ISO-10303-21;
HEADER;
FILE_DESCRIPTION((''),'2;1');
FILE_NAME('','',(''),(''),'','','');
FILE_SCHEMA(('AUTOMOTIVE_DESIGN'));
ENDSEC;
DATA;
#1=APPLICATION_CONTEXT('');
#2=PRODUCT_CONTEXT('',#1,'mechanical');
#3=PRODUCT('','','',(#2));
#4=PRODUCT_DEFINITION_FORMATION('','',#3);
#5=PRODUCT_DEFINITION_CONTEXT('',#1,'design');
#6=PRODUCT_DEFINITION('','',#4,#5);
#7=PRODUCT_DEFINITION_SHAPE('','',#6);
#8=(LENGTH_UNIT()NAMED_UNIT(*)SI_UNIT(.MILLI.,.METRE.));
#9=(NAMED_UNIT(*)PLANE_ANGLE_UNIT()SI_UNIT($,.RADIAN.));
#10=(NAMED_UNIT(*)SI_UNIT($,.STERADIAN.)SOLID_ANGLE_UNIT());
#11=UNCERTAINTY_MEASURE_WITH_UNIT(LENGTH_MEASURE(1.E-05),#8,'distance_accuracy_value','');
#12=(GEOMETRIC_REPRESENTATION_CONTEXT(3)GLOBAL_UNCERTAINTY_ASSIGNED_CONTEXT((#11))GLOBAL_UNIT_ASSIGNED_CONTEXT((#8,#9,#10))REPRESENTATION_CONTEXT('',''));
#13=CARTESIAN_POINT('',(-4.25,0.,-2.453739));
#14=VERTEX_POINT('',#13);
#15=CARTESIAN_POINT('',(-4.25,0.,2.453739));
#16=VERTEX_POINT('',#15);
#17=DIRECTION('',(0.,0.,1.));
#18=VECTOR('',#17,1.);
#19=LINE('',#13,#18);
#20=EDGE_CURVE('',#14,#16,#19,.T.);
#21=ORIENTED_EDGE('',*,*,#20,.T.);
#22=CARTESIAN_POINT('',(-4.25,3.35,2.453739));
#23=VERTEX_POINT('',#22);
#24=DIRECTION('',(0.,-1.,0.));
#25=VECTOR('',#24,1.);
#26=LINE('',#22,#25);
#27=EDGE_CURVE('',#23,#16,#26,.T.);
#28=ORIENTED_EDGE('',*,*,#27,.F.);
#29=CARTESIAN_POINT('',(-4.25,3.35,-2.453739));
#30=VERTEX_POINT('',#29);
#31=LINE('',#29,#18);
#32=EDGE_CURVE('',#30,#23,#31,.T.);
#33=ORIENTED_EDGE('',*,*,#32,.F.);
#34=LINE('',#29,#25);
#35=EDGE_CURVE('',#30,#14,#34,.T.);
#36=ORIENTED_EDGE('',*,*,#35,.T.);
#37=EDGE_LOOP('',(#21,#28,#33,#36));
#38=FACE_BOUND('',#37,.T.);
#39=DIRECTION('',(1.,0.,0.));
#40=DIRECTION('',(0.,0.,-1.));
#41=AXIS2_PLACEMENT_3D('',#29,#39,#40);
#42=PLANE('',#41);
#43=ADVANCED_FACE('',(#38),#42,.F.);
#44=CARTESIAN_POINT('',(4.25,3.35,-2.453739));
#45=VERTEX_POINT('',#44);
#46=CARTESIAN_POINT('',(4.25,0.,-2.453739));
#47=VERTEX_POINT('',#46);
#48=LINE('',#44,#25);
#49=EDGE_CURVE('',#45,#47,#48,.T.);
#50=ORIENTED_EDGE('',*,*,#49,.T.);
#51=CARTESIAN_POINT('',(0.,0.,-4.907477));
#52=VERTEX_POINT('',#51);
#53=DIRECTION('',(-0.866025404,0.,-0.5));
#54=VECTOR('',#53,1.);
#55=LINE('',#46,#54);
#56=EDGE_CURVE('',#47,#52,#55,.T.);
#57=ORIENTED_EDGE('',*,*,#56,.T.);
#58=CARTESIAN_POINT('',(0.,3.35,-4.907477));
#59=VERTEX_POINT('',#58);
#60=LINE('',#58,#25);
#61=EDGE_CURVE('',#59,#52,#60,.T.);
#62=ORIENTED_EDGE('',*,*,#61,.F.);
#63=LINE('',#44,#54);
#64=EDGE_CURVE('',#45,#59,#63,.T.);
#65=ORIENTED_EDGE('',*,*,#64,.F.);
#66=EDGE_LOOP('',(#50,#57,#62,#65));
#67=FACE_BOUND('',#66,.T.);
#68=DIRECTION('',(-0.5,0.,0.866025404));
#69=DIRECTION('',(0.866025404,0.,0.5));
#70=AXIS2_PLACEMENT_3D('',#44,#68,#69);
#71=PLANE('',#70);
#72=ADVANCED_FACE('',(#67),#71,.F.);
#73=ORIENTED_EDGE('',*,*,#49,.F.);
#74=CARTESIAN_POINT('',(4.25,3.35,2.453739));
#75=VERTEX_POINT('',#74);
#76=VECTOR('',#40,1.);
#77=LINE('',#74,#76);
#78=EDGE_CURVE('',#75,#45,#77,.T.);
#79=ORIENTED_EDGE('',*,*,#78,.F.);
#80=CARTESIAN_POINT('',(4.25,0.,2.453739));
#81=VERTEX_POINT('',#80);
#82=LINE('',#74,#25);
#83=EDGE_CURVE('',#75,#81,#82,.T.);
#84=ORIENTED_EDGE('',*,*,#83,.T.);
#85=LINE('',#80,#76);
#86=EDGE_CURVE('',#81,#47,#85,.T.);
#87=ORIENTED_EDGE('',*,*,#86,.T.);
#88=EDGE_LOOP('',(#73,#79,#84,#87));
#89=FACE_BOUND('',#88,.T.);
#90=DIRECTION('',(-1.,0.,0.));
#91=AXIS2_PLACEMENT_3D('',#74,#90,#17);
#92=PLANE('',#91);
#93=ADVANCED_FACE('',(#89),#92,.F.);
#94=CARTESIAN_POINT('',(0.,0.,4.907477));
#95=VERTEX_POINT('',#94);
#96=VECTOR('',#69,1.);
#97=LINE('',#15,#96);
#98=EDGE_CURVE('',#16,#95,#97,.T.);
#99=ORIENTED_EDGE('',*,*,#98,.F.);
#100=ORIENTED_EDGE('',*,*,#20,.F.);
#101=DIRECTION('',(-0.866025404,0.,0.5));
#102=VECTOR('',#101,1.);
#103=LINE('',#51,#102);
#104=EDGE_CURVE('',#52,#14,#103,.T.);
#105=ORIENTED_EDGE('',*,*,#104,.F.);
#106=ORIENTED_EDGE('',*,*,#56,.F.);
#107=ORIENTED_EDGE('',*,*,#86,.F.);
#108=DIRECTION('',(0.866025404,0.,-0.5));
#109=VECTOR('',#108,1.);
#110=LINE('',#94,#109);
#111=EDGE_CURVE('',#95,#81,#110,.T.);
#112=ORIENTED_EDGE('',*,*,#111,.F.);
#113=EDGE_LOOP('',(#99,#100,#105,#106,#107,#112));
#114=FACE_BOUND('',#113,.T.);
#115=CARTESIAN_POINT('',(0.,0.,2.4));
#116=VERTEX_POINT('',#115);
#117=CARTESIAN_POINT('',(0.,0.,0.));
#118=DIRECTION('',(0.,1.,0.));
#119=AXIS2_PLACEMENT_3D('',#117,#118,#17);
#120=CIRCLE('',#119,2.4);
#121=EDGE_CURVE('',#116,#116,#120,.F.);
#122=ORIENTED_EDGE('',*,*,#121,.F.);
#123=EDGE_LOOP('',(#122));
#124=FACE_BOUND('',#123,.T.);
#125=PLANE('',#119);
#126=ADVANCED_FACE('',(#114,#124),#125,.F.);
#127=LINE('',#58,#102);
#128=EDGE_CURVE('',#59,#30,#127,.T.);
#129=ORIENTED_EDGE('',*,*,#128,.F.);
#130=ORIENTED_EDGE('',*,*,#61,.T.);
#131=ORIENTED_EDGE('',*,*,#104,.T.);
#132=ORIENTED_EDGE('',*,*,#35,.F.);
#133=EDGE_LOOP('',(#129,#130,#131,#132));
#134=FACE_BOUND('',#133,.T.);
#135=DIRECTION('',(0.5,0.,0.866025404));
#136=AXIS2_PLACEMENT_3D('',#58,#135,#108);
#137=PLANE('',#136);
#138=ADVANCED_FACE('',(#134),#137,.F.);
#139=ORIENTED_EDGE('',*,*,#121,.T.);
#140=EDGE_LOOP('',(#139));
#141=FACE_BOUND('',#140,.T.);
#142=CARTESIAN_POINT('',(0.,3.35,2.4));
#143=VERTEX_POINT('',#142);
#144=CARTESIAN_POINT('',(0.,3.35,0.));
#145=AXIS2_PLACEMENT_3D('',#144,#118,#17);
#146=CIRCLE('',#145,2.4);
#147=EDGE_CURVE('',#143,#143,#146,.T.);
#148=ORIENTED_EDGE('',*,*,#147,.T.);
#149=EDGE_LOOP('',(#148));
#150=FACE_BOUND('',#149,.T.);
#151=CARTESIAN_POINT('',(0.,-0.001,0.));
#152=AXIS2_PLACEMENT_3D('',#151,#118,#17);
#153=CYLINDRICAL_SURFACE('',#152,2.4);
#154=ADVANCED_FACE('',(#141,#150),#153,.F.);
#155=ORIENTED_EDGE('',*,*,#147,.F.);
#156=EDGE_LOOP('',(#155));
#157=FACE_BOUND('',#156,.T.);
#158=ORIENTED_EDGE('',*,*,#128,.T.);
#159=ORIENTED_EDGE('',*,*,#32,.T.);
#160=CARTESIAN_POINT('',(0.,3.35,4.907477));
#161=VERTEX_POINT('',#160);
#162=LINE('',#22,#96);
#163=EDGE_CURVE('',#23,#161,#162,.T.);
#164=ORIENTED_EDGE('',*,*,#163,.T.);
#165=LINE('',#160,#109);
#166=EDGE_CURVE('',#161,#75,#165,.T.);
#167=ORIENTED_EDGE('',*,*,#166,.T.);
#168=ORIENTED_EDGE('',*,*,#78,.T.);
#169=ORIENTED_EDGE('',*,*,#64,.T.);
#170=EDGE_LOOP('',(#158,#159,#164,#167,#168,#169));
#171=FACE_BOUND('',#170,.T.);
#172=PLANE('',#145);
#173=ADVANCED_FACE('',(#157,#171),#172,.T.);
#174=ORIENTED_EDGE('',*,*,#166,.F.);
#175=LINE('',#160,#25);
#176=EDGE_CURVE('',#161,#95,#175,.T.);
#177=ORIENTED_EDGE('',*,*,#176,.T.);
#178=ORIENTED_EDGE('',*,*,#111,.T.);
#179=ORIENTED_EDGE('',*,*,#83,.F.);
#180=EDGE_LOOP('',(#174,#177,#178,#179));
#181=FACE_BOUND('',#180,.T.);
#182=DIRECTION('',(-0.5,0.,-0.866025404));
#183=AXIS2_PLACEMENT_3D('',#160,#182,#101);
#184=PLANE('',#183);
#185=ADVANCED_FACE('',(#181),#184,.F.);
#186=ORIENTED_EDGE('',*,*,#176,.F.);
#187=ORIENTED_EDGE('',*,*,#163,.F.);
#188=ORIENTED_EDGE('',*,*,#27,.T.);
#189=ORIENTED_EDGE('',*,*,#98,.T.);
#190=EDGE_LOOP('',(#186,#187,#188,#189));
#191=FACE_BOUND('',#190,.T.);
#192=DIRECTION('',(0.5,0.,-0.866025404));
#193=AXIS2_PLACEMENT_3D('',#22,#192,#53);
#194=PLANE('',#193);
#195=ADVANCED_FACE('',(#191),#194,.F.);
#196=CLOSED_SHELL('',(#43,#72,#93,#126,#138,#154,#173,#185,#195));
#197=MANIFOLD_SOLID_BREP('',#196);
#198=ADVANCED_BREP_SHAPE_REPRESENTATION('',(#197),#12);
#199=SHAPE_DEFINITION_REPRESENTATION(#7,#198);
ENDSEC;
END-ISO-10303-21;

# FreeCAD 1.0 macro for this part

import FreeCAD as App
import Part
import Sketcher

V = App.Vector
Q = App.Units.Quantity


def add_polygon(sketch, points):
    """Adds a closed chain of lines whose ends are joined by coincident constraints."""
    first, n = sketch.GeometryCount, len(points)
    for a, b in zip(points, points[1:] + points[:1]):
        sketch.addGeometry(Part.LineSegment(App.Vector(*a, 0), App.Vector(*b, 0)), False)
    for i in range(n):
        sketch.addConstraint(Sketcher.Constraint("Coincident", first + i, 2, first + (i + 1) % n, 1))

doc = App.newDocument("Part")
params = doc.addObject("Spreadsheet::Sheet", "Params")
for row, (alias, value) in enumerate([
    ("pad1_length", "3.35 mm"),
    ("sketch2_diameter", "4.8 mm"),
], start=1):
    params.set(f"A{row}", alias)
    params.set(f"B{row}", "=" + value)
    params.setAlias(f"B{row}", alias)

body = doc.addObject("PartDesign::Body", "Body")

# Sketch on XZ plane
sketch1 = body.newObject("Sketcher::SketchObject", "Sketch")
sketch1.AttachmentSupport = (doc.getObject("XZ_Plane"), [""])
sketch1.MapMode = "FlatFace"
add_polygon(sketch1, [(0, -4.9), (-4.2, -2.5), (-4.2, 2.5), (0, 4.9), (4.2, 2.5), (4.2, -2.5)])  # lines 0-5
sketch1.addConstraint([
    Sketcher.Constraint("Vertical", 1),
    Sketcher.Constraint("Vertical", 4),
    Sketcher.Constraint("Symmetric", 0, 2, 3, 2, -1, 1),
    Sketcher.Constraint("Symmetric", 2, 2, 5, 2, -1, 1),
    Sketcher.Constraint("PointOnObject", 2, 2, -2),
    Sketcher.Constraint("Parallel", 2, 5),
    Sketcher.Constraint("Horizontal", 1, 2, 3, 2),
    Sketcher.Constraint("Angle", 0, Q("150 deg")),
    Sketcher.Constraint("DistanceX", 1, 2, 3, 2, 8.5),
    Sketcher.Constraint("DistanceY", 1, 1, 1, 2, 4.907477),
])
pad1 = body.newObject("PartDesign::Pad", "Pad")
pad1.Profile = sketch1
pad1.setExpression("Length", "Params.pad1_length")
pad1.Reversed = True

# Sketch on XZ plane
sketch2 = body.newObject("Sketcher::SketchObject", "Sketch001")
sketch2.AttachmentSupport = (doc.getObject("XZ_Plane"), [""])
sketch2.MapMode = "FlatFace"
sketch2.AttachmentOffset = App.Placement(V(0, 0, -3.35), App.Rotation())
sketch2.addGeometry(Part.Circle(V(0, 0, 0), V(0, 0, 1), 2.4), False)
sketch2.addConstraint([
    Sketcher.Constraint("Coincident", 0, 3, -1, 1),
    Sketcher.Constraint("Diameter", 0, 4.8),
])
sketch2.setExpression("Constraints[1]", "Params.sketch2_diameter")
pocket1 = body.newObject("PartDesign::Pocket", "Pocket")
pocket1.Profile = sketch2
pocket1.Type = "UpToFirst"
pocket1.Reversed = True

doc.recompute()
